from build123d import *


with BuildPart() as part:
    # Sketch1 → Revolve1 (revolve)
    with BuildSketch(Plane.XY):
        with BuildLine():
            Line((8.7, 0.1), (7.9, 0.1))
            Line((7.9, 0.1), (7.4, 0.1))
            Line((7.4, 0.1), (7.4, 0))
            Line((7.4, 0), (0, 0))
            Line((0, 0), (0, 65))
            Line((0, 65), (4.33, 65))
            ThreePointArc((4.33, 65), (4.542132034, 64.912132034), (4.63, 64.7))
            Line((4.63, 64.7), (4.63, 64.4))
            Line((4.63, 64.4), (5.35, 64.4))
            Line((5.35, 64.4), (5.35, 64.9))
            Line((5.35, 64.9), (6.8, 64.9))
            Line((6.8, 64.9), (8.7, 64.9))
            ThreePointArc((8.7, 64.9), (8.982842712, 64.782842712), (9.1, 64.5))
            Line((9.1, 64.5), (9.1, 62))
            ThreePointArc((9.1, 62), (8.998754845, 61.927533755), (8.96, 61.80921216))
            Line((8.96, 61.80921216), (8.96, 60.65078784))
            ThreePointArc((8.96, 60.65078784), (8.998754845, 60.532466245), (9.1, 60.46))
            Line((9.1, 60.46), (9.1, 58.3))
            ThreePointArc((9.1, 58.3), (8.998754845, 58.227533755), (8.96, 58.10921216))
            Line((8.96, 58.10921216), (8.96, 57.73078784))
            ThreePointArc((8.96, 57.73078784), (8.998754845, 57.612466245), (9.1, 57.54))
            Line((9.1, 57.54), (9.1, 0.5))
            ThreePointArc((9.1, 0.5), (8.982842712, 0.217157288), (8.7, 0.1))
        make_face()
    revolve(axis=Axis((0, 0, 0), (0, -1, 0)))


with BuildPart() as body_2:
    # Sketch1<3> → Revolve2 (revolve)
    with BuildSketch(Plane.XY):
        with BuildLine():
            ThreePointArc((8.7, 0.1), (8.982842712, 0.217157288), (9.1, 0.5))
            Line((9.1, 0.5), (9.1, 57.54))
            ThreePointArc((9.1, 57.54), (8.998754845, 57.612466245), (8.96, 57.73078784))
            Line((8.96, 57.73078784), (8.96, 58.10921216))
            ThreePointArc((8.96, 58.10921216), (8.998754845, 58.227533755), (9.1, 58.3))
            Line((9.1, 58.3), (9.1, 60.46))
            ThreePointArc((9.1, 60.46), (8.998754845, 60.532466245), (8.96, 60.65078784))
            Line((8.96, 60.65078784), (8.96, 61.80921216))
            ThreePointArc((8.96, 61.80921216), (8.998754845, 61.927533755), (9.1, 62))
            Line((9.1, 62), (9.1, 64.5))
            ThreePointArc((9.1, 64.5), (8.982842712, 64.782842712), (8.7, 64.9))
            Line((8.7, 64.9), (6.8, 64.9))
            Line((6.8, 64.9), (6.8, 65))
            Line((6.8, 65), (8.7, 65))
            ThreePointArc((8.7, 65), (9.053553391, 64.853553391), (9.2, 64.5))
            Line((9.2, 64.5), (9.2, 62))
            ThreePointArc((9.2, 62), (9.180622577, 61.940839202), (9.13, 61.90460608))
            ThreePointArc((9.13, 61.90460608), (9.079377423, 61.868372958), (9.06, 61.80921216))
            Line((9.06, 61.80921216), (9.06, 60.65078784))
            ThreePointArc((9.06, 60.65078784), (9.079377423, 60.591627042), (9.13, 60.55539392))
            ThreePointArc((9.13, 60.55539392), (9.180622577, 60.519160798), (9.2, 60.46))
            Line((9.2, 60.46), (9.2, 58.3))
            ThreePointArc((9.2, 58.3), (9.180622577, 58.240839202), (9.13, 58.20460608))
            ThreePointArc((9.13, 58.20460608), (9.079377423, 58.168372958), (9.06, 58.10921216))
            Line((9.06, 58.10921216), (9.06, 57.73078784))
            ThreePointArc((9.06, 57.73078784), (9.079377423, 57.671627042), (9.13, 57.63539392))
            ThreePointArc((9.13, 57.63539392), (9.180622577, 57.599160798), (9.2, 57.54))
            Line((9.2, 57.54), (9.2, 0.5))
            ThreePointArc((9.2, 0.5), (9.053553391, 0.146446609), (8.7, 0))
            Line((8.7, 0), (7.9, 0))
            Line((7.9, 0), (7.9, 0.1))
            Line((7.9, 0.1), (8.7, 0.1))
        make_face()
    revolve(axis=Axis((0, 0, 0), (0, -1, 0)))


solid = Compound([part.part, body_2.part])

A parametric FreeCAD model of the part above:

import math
import FreeCAD as App
import Part
import Sketcher

doc = App.newDocument("Part")
body = doc.addObject("PartDesign::Body", "Body")

# Sketch on XY plane
sketch1 = body.newObject("Sketcher::SketchObject", "Sketch")
sketch1.AttachmentSupport = (doc.getObject("XY_Plane"), [""])
sketch1.MapMode = "FlatFace"
sketch1.addGeometry(Part.LineSegment(App.Vector(7.4, 0.1, 0), App.Vector(8.7, 0.1, 0)), False)
sketch1.addGeometry(Part.ArcOfCircle(Part.Circle(App.Vector(8.7, 0.5, 0), App.Vector(0, 0, 1), 0.4), math.radians(-90), math.radians(0)), False)
sketch1.addGeometry(Part.LineSegment(App.Vector(9.1, 0.5, 0), App.Vector(9.1, 57.54, 0)), False)
sketch1.addGeometry(Part.ArcOfCircle(Part.Circle(App.Vector(9.16, 57.73, 0), App.Vector(0, 0, 1), 0.2), math.radians(-180), math.radians(-107)), False)
sketch1.addGeometry(Part.LineSegment(App.Vector(8.96, 57.73, 0), App.Vector(8.96, 58.11, 0)), False)
sketch1.addGeometry(Part.ArcOfCircle(Part.Circle(App.Vector(9.16, 58.11, 0), App.Vector(0, 0, 1), 0.2), math.radians(107), math.radians(180)), False)
sketch1.addGeometry(Part.LineSegment(App.Vector(9.1, 58.3, 0), App.Vector(9.1, 60.46, 0)), False)
sketch1.addGeometry(Part.ArcOfCircle(Part.Circle(App.Vector(9.16, 60.65, 0), App.Vector(0, 0, 1), 0.2), math.radians(-180), math.radians(-107)), False)
sketch1.addGeometry(Part.LineSegment(App.Vector(8.96, 60.65, 0), App.Vector(8.96, 61.81, 0)), False)
sketch1.addGeometry(Part.ArcOfCircle(Part.Circle(App.Vector(9.16, 61.81, 0), App.Vector(0, 0, 1), 0.2), math.radians(107), math.radians(180)), False)
sketch1.addGeometry(Part.LineSegment(App.Vector(9.1, 62, 0), App.Vector(9.1, 64.5, 0)), False)
sketch1.addGeometry(Part.ArcOfCircle(Part.Circle(App.Vector(8.7, 64.5, 0), App.Vector(0, 0, 1), 0.4), math.radians(0), math.radians(90)), False)
sketch1.addGeometry(Part.LineSegment(App.Vector(8.7, 64.9, 0), App.Vector(5.35, 64.9, 0)), False)
sketch1.addGeometry(Part.LineSegment(App.Vector(5.35, 64.9, 0), App.Vector(5.35, 64.4, 0)), False)
sketch1.addGeometry(Part.LineSegment(App.Vector(5.35, 64.4, 0), App.Vector(4.63, 64.4, 0)), False)
sketch1.addGeometry(Part.LineSegment(App.Vector(4.63, 64.4, 0), App.Vector(4.63, 64.7, 0)), False)
sketch1.addGeometry(Part.ArcOfCircle(Part.Circle(App.Vector(4.33, 64.7, 0), App.Vector(0, 0, 1), 0.3), math.radians(0), math.radians(90)), False)
sketch1.addGeometry(Part.LineSegment(App.Vector(4.33, 65, 0), App.Vector(0, 65, 0)), False)
sketch1.addGeometry(Part.LineSegment(App.Vector(0, 65, 0), App.Vector(0, 0, 0)), False)
sketch1.addGeometry(Part.LineSegment(App.Vector(0, 0, 0), App.Vector(7.4, 0, 0)), False)
sketch1.addGeometry(Part.LineSegment(App.Vector(7.4, 0, 0), App.Vector(7.4, 0.1, 0)), False)
sketch1.addConstraint(Sketcher.Constraint("Tangent", 0, 2, 1, 1))
sketch1.addConstraint(Sketcher.Constraint("Tangent", 1, 2, 2, 1))
sketch1.addConstraint(Sketcher.Constraint("Coincident", 2, 2, 3, 2))
sketch1.addConstraint(Sketcher.Constraint("Tangent", 3, 1, 4, 1))
sketch1.addConstraint(Sketcher.Constraint("Tangent", 4, 2, 5, 2))
sketch1.addConstraint(Sketcher.Constraint("Coincident", 5, 1, 6, 1))
sketch1.addConstraint(Sketcher.Constraint("Coincident", 6, 2, 7, 2))
sketch1.addConstraint(Sketcher.Constraint("Tangent", 7, 1, 8, 1))
sketch1.addConstraint(Sketcher.Constraint("Tangent", 8, 2, 9, 2))
sketch1.addConstraint(Sketcher.Constraint("Coincident", 9, 1, 10, 1))
sketch1.addConstraint(Sketcher.Constraint("Tangent", 10, 2, 11, 1))
sketch1.addConstraint(Sketcher.Constraint("Tangent", 11, 2, 12, 1))
sketch1.addConstraint(Sketcher.Constraint("Coincident", 12, 2, 13, 1))
sketch1.addConstraint(Sketcher.Constraint("Coincident", 13, 2, 14, 1))
sketch1.addConstraint(Sketcher.Constraint("Coincident", 14, 2, 15, 1))
sketch1.addConstraint(Sketcher.Constraint("Tangent", 15, 2, 16, 1))
sketch1.addConstraint(Sketcher.Constraint("Tangent", 16, 2, 17, 1))
sketch1.addConstraint(Sketcher.Constraint("Coincident", 17, 2, 18, 1))
sketch1.addConstraint(Sketcher.Constraint("Coincident", 18, 2, 19, 1))
sketch1.addConstraint(Sketcher.Constraint("Coincident", 19, 2, 20, 1))
sketch1.addConstraint(Sketcher.Constraint("Coincident", 20, 2, 0, 1))
sketch1.addConstraint(Sketcher.Constraint("Horizontal", 0))
sketch1.addConstraint(Sketcher.Constraint("Vertical", 2))
sketch1.addConstraint(Sketcher.Constraint("Vertical", 4))
sketch1.addConstraint(Sketcher.Constraint("Vertical", 6))
sketch1.addConstraint(Sketcher.Constraint("Vertical", 8))
sketch1.addConstraint(Sketcher.Constraint("Vertical", 10))
sketch1.addConstraint(Sketcher.Constraint("Horizontal", 12))
sketch1.addConstraint(Sketcher.Constraint("Vertical", 13))
sketch1.addConstraint(Sketcher.Constraint("Horizontal", 14))
sketch1.addConstraint(Sketcher.Constraint("Vertical", 15))
sketch1.addConstraint(Sketcher.Constraint("Horizontal", 17))
sketch1.addConstraint(Sketcher.Constraint("Vertical", 18))
sketch1.addConstraint(Sketcher.Constraint("Horizontal", 19))
sketch1.addConstraint(Sketcher.Constraint("Vertical", 20))
sketch1.addConstraint(Sketcher.Constraint("Coincident", 18, 2, -1, 1))
sketch1.addConstraint(Sketcher.Constraint("Equal", 3, 5))
sketch1.addConstraint(Sketcher.Constraint("Equal", 5, 7))
sketch1.addConstraint(Sketcher.Constraint("Equal", 7, 9))
sketch1.addConstraint(Sketcher.Constraint("Equal", 1, 11))
sketch1.addConstraint(Sketcher.Constraint("Vertical", 5, 3, 7, 3))
sketch1.addConstraint(Sketcher.Constraint("Vertical", 1, 3, 11, 3))
sketch1.addConstraint(Sketcher.Constraint("Vertical", 2, 2, 5, 1))
sketch1.addConstraint(Sketcher.Constraint("Radius", 1, 0.4))
sketch1.addConstraint(Sketcher.Constraint("Radius", 3, 0.2))
sketch1.addConstraint(Sketcher.Constraint("Radius", 16, 0.3))
sketch1.addConstraint(Sketcher.Constraint("DistanceY", 18, 2, 18, 1, 65.0))
sketch1.addConstraint(Sketcher.Constraint("DistanceX", 0, 1, 0, 2, 1.3))
sketch1.addConstraint(Sketcher.Constraint("DistanceX", 19, 1, 19, 2, 7.4))
sketch1.addConstraint(Sketcher.Constraint("DistanceY", 10, 1, 10, 2, 2.5))
sketch1.addConstraint(Sketcher.Constraint("DistanceY", 13, 2, 13, 1, 0.5))
sketch1.addConstraint(Sketcher.Constraint("DistanceY", 15, 1, 15, 2, 0.3))
sketch1.addConstraint(Sketcher.Constraint("DistanceY", 20, 1, 20, 2, 0.1))
sketch1.addConstraint(Sketcher.Constraint("DistanceX", 12, 2, 12, 1, 3.35))
sketch1.addConstraint(Sketcher.Constraint("DistanceX", 14, 2, 14, 1, 0.72))
sketch1.addConstraint(Sketcher.Constraint("DistanceY", 2, 1, 2, 2, 57.04))
sketch1.addConstraint(Sketcher.Constraint("DistanceY", 6, 1, 6, 2, 2.16))
sketch1.addConstraint(Sketcher.Constraint("DistanceY", -1, 1, 5, 1, 58.3))
sketch1.addConstraint(Sketcher.Constraint("DistanceX", -1, 1, 3, 3, 9.16))
revolution = body.newObject("PartDesign::Revolution", "Revolution")
revolution.Profile = sketch1
revolution.ReferenceAxis = (sketch1, ["V_Axis"])
revolution.Angle = 360
body2 = doc.addObject("PartDesign::Body", "Body001")

# Sketch on XY plane
sketch2 = body2.newObject("Sketcher::SketchObject", "Sketch001")
sketch2.AttachmentSupport = (doc.getObject("XY_Plane001"), [""])
sketch2.MapMode = "FlatFace"
sketch2.addGeometry(Part.ArcOfCircle(Part.Circle(App.Vector(8.7, 0.5, 0), App.Vector(0, 0, 1), 0.4), math.radians(-90), math.radians(0)), False)
sketch2.addGeometry(Part.LineSegment(App.Vector(8.7, 0.1, 0), App.Vector(7.9, 0.1, 0)), False)
sketch2.addGeometry(Part.LineSegment(App.Vector(7.9, 0.1, 0), App.Vector(7.9, 0, 0)), False)
sketch2.addGeometry(Part.LineSegment(App.Vector(7.9, 0, 0), App.Vector(8.7, 0, 0)), False)
sketch2.addGeometry(Part.ArcOfCircle(Part.Circle(App.Vector(8.7, 0.5, 0), App.Vector(0, 0, 1), 0.5), math.radians(-90), math.radians(0)), False)
sketch2.addGeometry(Part.LineSegment(App.Vector(9.2, 0.5, 0), App.Vector(9.2, 57.54, 0)), False)
sketch2.addGeometry(Part.ArcOfCircle(Part.Circle(App.Vector(9.1, 57.54, 0), App.Vector(0, 0, 1), 0.1), math.radians(0), math.radians(73)), False)
sketch2.addGeometry(Part.ArcOfCircle(Part.Circle(App.Vector(9.16, 57.73, 0), App.Vector(0, 0, 1), 0.1), math.radians(-180), math.radians(-107)), False)
sketch2.addGeometry(Part.LineSegment(App.Vector(9.06, 57.73, 0), App.Vector(9.06, 58.11, 0)), False)
sketch2.addGeometry(Part.ArcOfCircle(Part.Circle(App.Vector(9.16, 58.11, 0), App.Vector(0, 0, 1), 0.1), math.radians(107), math.radians(180)), False)
sketch2.addGeometry(Part.ArcOfCircle(Part.Circle(App.Vector(9.1, 58.3, 0), App.Vector(0, 0, 1), 0.1), math.radians(-73), math.radians(0)), False)
sketch2.addGeometry(Part.LineSegment(App.Vector(9.2, 58.3, 0), App.Vector(9.2, 60.46, 0)), False)
sketch2.addGeometry(Part.ArcOfCircle(Part.Circle(App.Vector(9.1, 60.46, 0), App.Vector(0, 0, 1), 0.1), math.radians(0), math.radians(73)), False)
sketch2.addGeometry(Part.ArcOfCircle(Part.Circle(App.Vector(9.16, 60.65, 0), App.Vector(0, 0, 1), 0.1), math.radians(-180), math.radians(-107)), False)
sketch2.addGeometry(Part.LineSegment(App.Vector(9.06, 60.65, 0), App.Vector(9.06, 61.81, 0)), False)
sketch2.addGeometry(Part.ArcOfCircle(Part.Circle(App.Vector(9.16, 61.81, 0), App.Vector(0, 0, 1), 0.1), math.radians(107), math.radians(180)), False)
sketch2.addGeometry(Part.ArcOfCircle(Part.Circle(App.Vector(9.1, 62, 0), App.Vector(0, 0, 1), 0.1), math.radians(-73), math.radians(0)), False)
sketch2.addGeometry(Part.LineSegment(App.Vector(9.2, 62, 0), App.Vector(9.2, 64.5, 0)), False)
sketch2.addGeometry(Part.ArcOfCircle(Part.Circle(App.Vector(8.7, 64.5, 0), App.Vector(0, 0, 1), 0.5), math.radians(0), math.radians(90)), False)
sketch2.addGeometry(Part.LineSegment(App.Vector(8.7, 65, 0), App.Vector(6.8, 65, 0)), False)
sketch2.addGeometry(Part.LineSegment(App.Vector(6.8, 65, 0), App.Vector(6.8, 64.9, 0)), False)
sketch2.addGeometry(Part.LineSegment(App.Vector(6.8, 64.9, 0), App.Vector(8.7, 64.9, 0)), False)
sketch2.addGeometry(Part.ArcOfCircle(Part.Circle(App.Vector(8.7, 64.5, 0), App.Vector(0, 0, 1), 0.4), math.radians(0), math.radians(90)), False)
sketch2.addGeometry(Part.LineSegment(App.Vector(9.1, 64.5, 0), App.Vector(9.1, 62, 0)), False)
sketch2.addGeometry(Part.ArcOfCircle(Part.Circle(App.Vector(9.16, 61.81, 0), App.Vector(0, 0, 1), 0.2), math.radians(107), math.radians(180)), False)
sketch2.addGeometry(Part.LineSegment(App.Vector(8.96, 61.81, 0), App.Vector(8.96, 60.65, 0)), False)
sketch2.addGeometry(Part.ArcOfCircle(Part.Circle(App.Vector(9.16, 60.65, 0), App.Vector(0, 0, 1), 0.2), math.radians(-180), math.radians(-107)), False)
sketch2.addGeometry(Part.LineSegment(App.Vector(9.1, 60.46, 0), App.Vector(9.1, 58.3, 0)), False)
sketch2.addGeometry(Part.ArcOfCircle(Part.Circle(App.Vector(9.16, 58.11, 0), App.Vector(0, 0, 1), 0.2), math.radians(107), math.radians(180)), False)
sketch2.addGeometry(Part.LineSegment(App.Vector(8.96, 58.11, 0), App.Vector(8.96, 57.73, 0)), False)
sketch2.addGeometry(Part.ArcOfCircle(Part.Circle(App.Vector(9.16, 57.73, 0), App.Vector(0, 0, 1), 0.2), math.radians(-180), math.radians(-107)), False)
sketch2.addGeometry(Part.LineSegment(App.Vector(9.1, 57.54, 0), App.Vector(9.1, 0.5, 0)), False)
sketch2.addConstraint(Sketcher.Constraint("Tangent", 0, 1, 1, 1))
sketch2.addConstraint(Sketcher.Constraint("Coincident", 1, 2, 2, 1))
sketch2.addConstraint(Sketcher.Constraint("Coincident", 2, 2, 3, 1))
sketch2.addConstraint(Sketcher.Constraint("Tangent", 3, 2, 4, 1))
sketch2.addConstraint(Sketcher.Constraint("Tangent", 4, 2, 5, 1))
sketch2.addConstraint(Sketcher.Constraint("Tangent", 5, 2, 6, 1))
sketch2.addConstraint(Sketcher.Constraint("Tangent", 6, 2, 7, 2))
sketch2.addConstraint(Sketcher.Constraint("Tangent", 7, 1, 8, 1))
sketch2.addConstraint(Sketcher.Constraint("Tangent", 8, 2, 9, 2))
sketch2.addConstraint(Sketcher.Constraint("Tangent", 9, 1, 10, 1))
sketch2.addConstraint(Sketcher.Constraint("Tangent", 10, 2, 11, 1))
sketch2.addConstraint(Sketcher.Constraint("Tangent", 11, 2, 12, 1))
sketch2.addConstraint(Sketcher.Constraint("Tangent", 12, 2, 13, 2))
sketch2.addConstraint(Sketcher.Constraint("Tangent", 13, 1, 14, 1))
sketch2.addConstraint(Sketcher.Constraint("Tangent", 14, 2, 15, 2))
sketch2.addConstraint(Sketcher.Constraint("Tangent", 15, 1, 16, 1))
sketch2.addConstraint(Sketcher.Constraint("Tangent", 16, 2, 17, 1))
sketch2.addConstraint(Sketcher.Constraint("Tangent", 17, 2, 18, 1))
sketch2.addConstraint(Sketcher.Constraint("Tangent", 18, 2, 19, 1))
sketch2.addConstraint(Sketcher.Constraint("Coincident", 19, 2, 20, 1))
sketch2.addConstraint(Sketcher.Constraint("Coincident", 20, 2, 21, 1))
sketch2.addConstraint(Sketcher.Constraint("Tangent", 21, 2, 22, 2))
sketch2.addConstraint(Sketcher.Constraint("Tangent", 22, 1, 23, 1))
sketch2.addConstraint(Sketcher.Constraint("Coincident", 23, 2, 24, 1))
sketch2.addConstraint(Sketcher.Constraint("Tangent", 24, 2, 25, 1))
sketch2.addConstraint(Sketcher.Constraint("Tangent", 25, 2, 26, 1))
sketch2.addConstraint(Sketcher.Constraint("Coincident", 26, 2, 27, 1))
sketch2.addConstraint(Sketcher.Constraint("Coincident", 27, 2, 28, 1))
sketch2.addConstraint(Sketcher.Constraint("Tangent", 28, 2, 29, 1))
sketch2.addConstraint(Sketcher.Constraint("Tangent", 29, 2, 30, 1))
sketch2.addConstraint(Sketcher.Constraint("Coincident", 30, 2, 31, 1))
sketch2.addConstraint(Sketcher.Constraint("Tangent", 31, 2, 0, 2))
sketch2.addConstraint(Sketcher.Constraint("Horizontal", 1))
sketch2.addConstraint(Sketcher.Constraint("Vertical", 2))
sketch2.addConstraint(Sketcher.Constraint("Horizontal", 3))
sketch2.addConstraint(Sketcher.Constraint("Vertical", 5))
sketch2.addConstraint(Sketcher.Constraint("Vertical", 8))
sketch2.addConstraint(Sketcher.Constraint("Vertical", 11))
sketch2.addConstraint(Sketcher.Constraint("Vertical", 14))
sketch2.addConstraint(Sketcher.Constraint("Vertical", 17))
sketch2.addConstraint(Sketcher.Constraint("Horizontal", 19))
sketch2.addConstraint(Sketcher.Constraint("Vertical", 20))
sketch2.addConstraint(Sketcher.Constraint("Horizontal", 21))
sketch2.addConstraint(Sketcher.Constraint("Vertical", 23))
sketch2.addConstraint(Sketcher.Constraint("Vertical", 25))
sketch2.addConstraint(Sketcher.Constraint("Vertical", 27))
sketch2.addConstraint(Sketcher.Constraint("Vertical", 29))
sketch2.addConstraint(Sketcher.Constraint("Vertical", 31))
sketch2.addConstraint(Sketcher.Constraint("Coincident", 4, 3, 0, 3))
sketch2.addConstraint(Sketcher.Constraint("Coincident", 22, 3, 18, 3))
sketch2.addConstraint(Sketcher.Constraint("Coincident", 24, 3, 15, 3))
sketch2.addConstraint(Sketcher.Constraint("Coincident", 26, 3, 13, 3))
sketch2.addConstraint(Sketcher.Constraint("Coincident", 28, 3, 9, 3))
sketch2.addConstraint(Sketcher.Constraint("Coincident", 30, 3, 7, 3))
sketch2.addConstraint(Sketcher.Constraint("Coincident", 23, 2, 16, 3))
sketch2.addConstraint(Sketcher.Constraint("Coincident", 26, 2, 12, 3))
sketch2.addConstraint(Sketcher.Constraint("Coincident", 27, 2, 10, 3))
sketch2.addConstraint(Sketcher.Constraint("Coincident", 30, 2, 6, 3))
sketch2.addConstraint(Sketcher.Constraint("Equal", 6, 7))
sketch2.addConstraint(Sketcher.Constraint("Equal", 7, 9))
sketch2.addConstraint(Sketcher.Constraint("Equal", 12, 13))
sketch2.addConstraint(Sketcher.Constraint("Equal", 13, 15))
sketch2.addConstraint(Sketcher.Constraint("Equal", 4, 18))
sketch2.addConstraint(Sketcher.Constraint("PointOnObject", 2, 2, -1))
sketch2.addConstraint(Sketcher.Constraint("Vertical", 6, 3, 10, 3))
sketch2.addConstraint(Sketcher.Constraint("Vertical", 9, 3, 13, 3))
sketch2.addConstraint(Sketcher.Constraint("Vertical", 12, 3, 16, 3))
sketch2.addConstraint(Sketcher.Constraint("Radius", 0, 0.4))
sketch2.addConstraint(Sketcher.Constraint("Radius", 4, 0.5))
sketch2.addConstraint(Sketcher.Constraint("DistanceX", 1, 2, 1, 1, 0.8))
sketch2.addConstraint(Sketcher.Constraint("DistanceX", 19, 2, 19, 1, 1.9))
sketch2.addConstraint(Sketcher.Constraint("DistanceY", 17, 1, 17, 2, 2.5))
sketch2.addConstraint(Sketcher.Constraint("DistanceY", -1, 1, 16, 3, 62.0))
sketch2.addConstraint(Sketcher.Constraint("DistanceY", 5, 1, 5, 2, 57.04))
sketch2.addConstraint(Sketcher.Constraint("DistanceY", 11, 1, 11, 2, 2.16))
sketch2.addConstraint(Sketcher.Constraint("DistanceX", -1, 1, 0, 3, 8.7))
sketch2.addConstraint(Sketcher.Constraint("DistanceY", -1, 1, 10, 3, 58.3))
sketch2.addConstraint(Sketcher.Constraint("DistanceX", -1, 1, 7, 3, 9.16))
revolution2 = body2.newObject("PartDesign::Revolution", "Revolution001")
revolution2.Profile = sketch2
revolution2.ReferenceAxis = (sketch2, ["V_Axis"])
revolution2.Angle = 360

doc.recompute()
